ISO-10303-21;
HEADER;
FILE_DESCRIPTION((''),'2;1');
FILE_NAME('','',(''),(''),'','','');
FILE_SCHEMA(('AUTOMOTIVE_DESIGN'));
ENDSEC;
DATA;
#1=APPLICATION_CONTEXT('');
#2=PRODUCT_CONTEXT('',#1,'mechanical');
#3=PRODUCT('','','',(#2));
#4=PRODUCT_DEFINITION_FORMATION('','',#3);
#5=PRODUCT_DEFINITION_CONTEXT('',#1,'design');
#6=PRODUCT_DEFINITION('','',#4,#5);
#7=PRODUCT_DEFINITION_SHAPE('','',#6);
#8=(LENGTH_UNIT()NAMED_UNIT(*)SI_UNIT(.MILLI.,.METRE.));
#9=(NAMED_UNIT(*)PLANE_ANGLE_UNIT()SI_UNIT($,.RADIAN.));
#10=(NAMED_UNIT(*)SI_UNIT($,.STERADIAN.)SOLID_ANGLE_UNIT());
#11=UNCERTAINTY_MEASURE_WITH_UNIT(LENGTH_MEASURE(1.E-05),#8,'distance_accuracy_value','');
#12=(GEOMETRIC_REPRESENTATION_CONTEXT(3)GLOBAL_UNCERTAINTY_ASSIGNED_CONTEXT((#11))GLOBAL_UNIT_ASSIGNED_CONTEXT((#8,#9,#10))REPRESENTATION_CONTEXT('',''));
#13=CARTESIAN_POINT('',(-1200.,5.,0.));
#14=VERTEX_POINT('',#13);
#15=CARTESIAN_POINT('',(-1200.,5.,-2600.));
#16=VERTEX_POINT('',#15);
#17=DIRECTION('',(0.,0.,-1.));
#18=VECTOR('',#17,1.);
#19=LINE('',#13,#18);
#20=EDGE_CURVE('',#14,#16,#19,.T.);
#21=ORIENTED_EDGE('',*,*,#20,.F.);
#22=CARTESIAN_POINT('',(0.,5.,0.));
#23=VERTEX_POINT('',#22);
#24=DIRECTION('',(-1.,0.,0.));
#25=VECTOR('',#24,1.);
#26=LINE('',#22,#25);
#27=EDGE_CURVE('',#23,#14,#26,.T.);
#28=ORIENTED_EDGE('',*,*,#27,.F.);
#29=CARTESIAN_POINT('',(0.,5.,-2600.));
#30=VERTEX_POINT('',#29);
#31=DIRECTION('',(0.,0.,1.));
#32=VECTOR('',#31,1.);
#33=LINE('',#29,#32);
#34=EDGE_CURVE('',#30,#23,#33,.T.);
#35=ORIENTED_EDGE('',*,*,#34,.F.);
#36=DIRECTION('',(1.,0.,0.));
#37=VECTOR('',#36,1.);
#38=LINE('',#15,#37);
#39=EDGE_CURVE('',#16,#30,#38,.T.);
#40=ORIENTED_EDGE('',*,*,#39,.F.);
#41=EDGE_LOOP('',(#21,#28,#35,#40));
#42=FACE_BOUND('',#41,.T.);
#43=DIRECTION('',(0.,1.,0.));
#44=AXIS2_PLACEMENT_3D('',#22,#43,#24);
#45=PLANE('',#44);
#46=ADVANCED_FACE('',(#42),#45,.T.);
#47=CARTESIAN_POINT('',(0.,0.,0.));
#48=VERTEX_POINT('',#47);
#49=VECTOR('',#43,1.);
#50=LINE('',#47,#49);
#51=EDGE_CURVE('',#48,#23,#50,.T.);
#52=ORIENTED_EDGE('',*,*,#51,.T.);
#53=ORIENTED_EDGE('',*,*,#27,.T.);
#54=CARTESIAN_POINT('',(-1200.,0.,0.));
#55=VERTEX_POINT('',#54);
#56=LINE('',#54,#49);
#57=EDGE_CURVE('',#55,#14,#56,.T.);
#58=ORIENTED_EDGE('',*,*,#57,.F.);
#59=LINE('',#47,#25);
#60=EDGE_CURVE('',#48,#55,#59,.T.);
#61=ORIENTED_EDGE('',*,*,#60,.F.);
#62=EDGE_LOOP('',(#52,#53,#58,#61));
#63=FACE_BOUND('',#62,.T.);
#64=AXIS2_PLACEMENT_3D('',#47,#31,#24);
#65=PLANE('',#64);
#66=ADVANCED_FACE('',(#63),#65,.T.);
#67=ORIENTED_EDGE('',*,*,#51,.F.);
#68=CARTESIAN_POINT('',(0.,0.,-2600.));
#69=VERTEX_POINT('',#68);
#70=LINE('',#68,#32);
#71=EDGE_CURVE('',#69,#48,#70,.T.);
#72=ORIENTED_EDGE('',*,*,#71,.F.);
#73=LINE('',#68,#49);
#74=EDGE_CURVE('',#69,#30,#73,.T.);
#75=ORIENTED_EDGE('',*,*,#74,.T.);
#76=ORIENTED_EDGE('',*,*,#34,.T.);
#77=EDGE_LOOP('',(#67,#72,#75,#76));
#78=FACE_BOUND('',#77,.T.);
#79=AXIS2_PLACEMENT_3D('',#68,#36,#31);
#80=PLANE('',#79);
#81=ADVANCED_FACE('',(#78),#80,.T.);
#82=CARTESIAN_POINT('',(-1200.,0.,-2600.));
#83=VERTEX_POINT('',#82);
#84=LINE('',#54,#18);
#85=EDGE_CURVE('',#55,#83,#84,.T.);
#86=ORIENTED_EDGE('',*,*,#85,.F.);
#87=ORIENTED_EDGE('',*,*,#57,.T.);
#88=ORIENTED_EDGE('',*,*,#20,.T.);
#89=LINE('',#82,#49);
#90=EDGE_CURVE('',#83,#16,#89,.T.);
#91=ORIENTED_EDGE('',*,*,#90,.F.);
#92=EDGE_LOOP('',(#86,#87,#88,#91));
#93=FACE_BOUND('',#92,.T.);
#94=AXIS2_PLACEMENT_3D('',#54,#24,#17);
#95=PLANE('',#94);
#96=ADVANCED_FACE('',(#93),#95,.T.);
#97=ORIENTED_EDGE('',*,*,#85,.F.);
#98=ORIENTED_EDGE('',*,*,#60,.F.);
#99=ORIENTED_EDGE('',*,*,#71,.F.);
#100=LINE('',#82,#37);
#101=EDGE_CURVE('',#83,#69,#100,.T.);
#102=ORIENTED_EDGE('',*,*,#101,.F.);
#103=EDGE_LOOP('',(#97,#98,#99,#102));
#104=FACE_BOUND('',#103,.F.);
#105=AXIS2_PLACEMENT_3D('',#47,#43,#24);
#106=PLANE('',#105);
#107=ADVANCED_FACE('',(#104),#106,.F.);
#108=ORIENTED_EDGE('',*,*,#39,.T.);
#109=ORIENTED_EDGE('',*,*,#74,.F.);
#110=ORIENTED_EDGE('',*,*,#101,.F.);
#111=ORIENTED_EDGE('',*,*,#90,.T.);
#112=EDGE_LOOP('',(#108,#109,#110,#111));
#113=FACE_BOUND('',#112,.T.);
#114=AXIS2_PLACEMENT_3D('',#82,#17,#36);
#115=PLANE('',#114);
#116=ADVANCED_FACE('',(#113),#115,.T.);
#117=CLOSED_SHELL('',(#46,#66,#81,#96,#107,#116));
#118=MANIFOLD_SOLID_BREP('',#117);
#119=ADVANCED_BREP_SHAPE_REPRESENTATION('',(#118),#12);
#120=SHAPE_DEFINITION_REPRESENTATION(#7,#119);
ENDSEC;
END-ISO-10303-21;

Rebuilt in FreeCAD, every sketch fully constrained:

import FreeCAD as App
import Part
import Sketcher

V = App.Vector
Q = App.Units.Quantity


def add_polygon(sketch, points):
    """Adds a closed chain of lines whose ends are joined by coincident constraints."""
    first, n = sketch.GeometryCount, len(points)
    for a, b in zip(points, points[1:] + points[:1]):
        sketch.addGeometry(Part.LineSegment(App.Vector(*a, 0), App.Vector(*b, 0)), False)
    for i in range(n):
        sketch.addConstraint(Sketcher.Constraint("Coincident", first + i, 2, first + (i + 1) % n, 1))

doc = App.newDocument("Part")
body = doc.addObject("PartDesign::Body", "Body")

sketch1 = doc.addObject("Sketcher::SketchObject", "Sketch")
body.addObject(sketch1)
sketch1.AttachmentSupport = (doc.XZ_Plane, [""])
sketch1.MapMode = "FlatFace"
add_polygon(sketch1, [(-1200, 0), (0, 0), (0, -2600), (-1200, -2600)])
sketch1.addConstraint([
    Sketcher.Constraint("Horizontal", 0),
    Sketcher.Constraint("Vertical", 1),
    Sketcher.Constraint("Horizontal", 2),
    Sketcher.Constraint("Vertical", 3),
    Sketcher.Constraint("Coincident", 0, 2, -1, 1),
    Sketcher.Constraint("DistanceX", 0, 1, 0, 2, Q("1200 mm")),
    Sketcher.Constraint("DistanceY", 1, 2, 1, 1, Q("2600 mm")),
])
pad1 = doc.addObject("PartDesign::Pad", "Pad")
body.addObject(pad1)
pad1.Profile = sketch1
pad1.Length = 5
pad1.Reversed = True

doc.recompute()
